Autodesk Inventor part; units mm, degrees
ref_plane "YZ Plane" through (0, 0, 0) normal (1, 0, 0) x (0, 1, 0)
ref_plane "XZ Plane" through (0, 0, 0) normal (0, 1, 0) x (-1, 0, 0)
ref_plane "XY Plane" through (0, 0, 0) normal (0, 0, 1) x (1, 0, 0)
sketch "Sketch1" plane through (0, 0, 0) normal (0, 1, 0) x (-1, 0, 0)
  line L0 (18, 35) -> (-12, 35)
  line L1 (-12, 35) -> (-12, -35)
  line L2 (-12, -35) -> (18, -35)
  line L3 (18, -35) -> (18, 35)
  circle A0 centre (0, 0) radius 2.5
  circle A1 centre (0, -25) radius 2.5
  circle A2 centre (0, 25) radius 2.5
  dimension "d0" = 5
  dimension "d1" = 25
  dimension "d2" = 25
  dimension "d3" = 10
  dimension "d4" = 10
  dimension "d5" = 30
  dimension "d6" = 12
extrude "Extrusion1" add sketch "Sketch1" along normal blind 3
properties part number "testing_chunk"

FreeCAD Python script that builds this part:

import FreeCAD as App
import Part
import Sketcher

V = App.Vector

doc = App.newDocument("Part")
body = doc.addObject("PartDesign::Body", "Body")

sketch1 = doc.addObject("Sketcher::SketchObject", "Sketch")
body.addObject(sketch1)
sketch1.AttachmentSupport = (doc.XZ_Plane, [""])
sketch1.MapMode = "FlatFace"
sketch1.addGeometry([
    Part.LineSegment(V(-18, -35, 0), V(-18, 35, 0)),
    Part.LineSegment(V(-18, 35, 0), V(12, 35, 0)),
    Part.LineSegment(V(12, 35, 0), V(12, -35, 0)),
    Part.LineSegment(V(12, -35, 0), V(-18, -35, 0)),
    Part.Circle(V(0, -25, 0), V(0, 0, 1), 2.5),
    Part.Circle(V(0, 0, 0), V(0, 0, 1), 2.5),
    Part.Circle(V(0, 25, 0), V(0, 0, 1), 2.5),
], False)
sketch1.addConstraint([
    Sketcher.Constraint("Coincident", 0, 2, 1, 1),
    Sketcher.Constraint("Coincident", 1, 2, 2, 1),
    Sketcher.Constraint("Coincident", 2, 2, 3, 1),
    Sketcher.Constraint("Coincident", 3, 2, 0, 1),
    Sketcher.Constraint("Vertical", 0),
    Sketcher.Constraint("Horizontal", 1),
    Sketcher.Constraint("Vertical", 2),
    Sketcher.Constraint("Horizontal", 3),
    Sketcher.Constraint("Coincident", 5, 3, -1, 1),
    Sketcher.Constraint("Equal", 4, 5),
    Sketcher.Constraint("Equal", 5, 6),
    Sketcher.Constraint("Symmetric", 4, 3, 6, 3, -1, 1),
    Sketcher.Constraint("PointOnObject", 4, 3, -2),
    Sketcher.Constraint("Diameter", 4, 5.0),
    Sketcher.Constraint("DistanceX", 1, 1, 1, 2, 30.0),
    Sketcher.Constraint("DistanceY", 4, 3, -1, 1, 25.0),
    Sketcher.Constraint("DistanceX", -1, 1, 1, 2, 12.0),
    Sketcher.Constraint("DistanceY", 6, 3, 0, 2, 10.0),
    Sketcher.Constraint("DistanceY", 2, 2, 4, 3, 10.0),
])
pad1 = doc.addObject("PartDesign::Pad", "Pad")
body.addObject(pad1)
pad1.Profile = sketch1
pad1.Length = 3
pad1.Reversed = True

doc.recompute()
